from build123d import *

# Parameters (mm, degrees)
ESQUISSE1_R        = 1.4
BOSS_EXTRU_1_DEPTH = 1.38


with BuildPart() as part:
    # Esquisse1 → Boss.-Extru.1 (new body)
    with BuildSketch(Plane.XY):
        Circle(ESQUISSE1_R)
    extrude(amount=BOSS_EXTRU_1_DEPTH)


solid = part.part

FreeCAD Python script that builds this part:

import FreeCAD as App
import Part
import Sketcher
Q = App.Units.Quantity

doc = App.newDocument("Part")
body = doc.addObject("PartDesign::Body", "Body")

# Sketch on XY plane
sketch1 = doc.addObject("Sketcher::SketchObject", "Sketch")
body.addObject(sketch1)
sketch1.AttachmentSupport = (doc.XY_Plane, [""])
sketch1.MapMode = "FlatFace"
sketch1.addGeometry(Part.Circle(App.Vector(0, 0, 0), App.Vector(0, 0, 1), 1.4), False)
sketch1.addConstraint(Sketcher.Constraint("Coincident", 0, 3, -1, 1))
sketch1.addConstraint(Sketcher.Constraint("Diameter", 0, Q("2.8 mm")))
pad1 = doc.addObject("PartDesign::Pad", "Pad")
body.addObject(pad1)
pad1.Profile = sketch1
pad1.Length = 1.38

doc.recompute()
